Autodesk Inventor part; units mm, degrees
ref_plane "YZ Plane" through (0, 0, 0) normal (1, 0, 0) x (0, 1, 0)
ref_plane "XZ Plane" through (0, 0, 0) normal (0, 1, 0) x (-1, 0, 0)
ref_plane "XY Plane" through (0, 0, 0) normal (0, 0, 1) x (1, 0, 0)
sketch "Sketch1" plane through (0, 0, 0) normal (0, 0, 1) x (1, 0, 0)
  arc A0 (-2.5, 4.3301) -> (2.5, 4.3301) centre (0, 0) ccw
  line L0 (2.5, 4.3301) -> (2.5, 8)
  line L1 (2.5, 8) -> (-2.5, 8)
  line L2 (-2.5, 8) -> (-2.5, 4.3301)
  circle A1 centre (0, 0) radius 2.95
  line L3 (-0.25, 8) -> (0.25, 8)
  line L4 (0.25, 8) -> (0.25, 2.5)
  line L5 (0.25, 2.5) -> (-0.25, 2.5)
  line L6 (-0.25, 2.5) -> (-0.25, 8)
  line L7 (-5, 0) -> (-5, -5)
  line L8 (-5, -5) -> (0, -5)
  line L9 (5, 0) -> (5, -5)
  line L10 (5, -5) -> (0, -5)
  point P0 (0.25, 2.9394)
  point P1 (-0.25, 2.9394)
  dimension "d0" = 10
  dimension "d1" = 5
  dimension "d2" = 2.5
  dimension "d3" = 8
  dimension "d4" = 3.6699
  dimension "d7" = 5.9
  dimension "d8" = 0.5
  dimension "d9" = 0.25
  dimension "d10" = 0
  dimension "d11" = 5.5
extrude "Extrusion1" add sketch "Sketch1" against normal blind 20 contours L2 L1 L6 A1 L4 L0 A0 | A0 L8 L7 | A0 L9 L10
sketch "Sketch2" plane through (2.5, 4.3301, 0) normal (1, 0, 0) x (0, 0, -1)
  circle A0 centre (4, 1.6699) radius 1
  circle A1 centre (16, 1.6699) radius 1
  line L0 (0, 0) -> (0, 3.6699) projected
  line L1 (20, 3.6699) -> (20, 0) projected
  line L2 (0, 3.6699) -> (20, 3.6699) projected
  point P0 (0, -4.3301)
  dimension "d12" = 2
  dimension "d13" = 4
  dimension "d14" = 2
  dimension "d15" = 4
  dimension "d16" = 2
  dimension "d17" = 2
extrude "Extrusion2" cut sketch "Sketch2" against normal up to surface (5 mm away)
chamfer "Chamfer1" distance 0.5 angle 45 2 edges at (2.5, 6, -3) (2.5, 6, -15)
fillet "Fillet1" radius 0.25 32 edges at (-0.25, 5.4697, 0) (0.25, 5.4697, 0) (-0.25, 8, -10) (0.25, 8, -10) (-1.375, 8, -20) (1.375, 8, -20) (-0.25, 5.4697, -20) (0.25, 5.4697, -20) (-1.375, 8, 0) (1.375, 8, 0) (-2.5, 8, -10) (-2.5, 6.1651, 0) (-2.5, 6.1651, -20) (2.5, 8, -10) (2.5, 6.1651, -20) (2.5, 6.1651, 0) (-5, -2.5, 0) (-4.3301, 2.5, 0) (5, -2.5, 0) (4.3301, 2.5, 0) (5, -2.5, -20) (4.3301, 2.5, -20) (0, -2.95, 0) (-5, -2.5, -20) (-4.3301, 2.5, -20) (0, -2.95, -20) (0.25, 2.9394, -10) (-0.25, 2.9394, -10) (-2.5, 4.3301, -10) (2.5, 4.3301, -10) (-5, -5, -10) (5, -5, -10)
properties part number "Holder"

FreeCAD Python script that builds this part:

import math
import FreeCAD as App
import Part
import Sketcher
Q = App.Units.Quantity


def edges_at(feature, points):
    """Names of the edges that pass closest to the given points."""
    edges = feature.Shape.Edges
    near = lambda p: min(range(len(edges)), key=lambda i: edges[i].distToShape(Part.Vertex(*p))[0])
    return sorted({f"Edge{near(p) + 1}" for p in points})

doc = App.newDocument("Part")
params = doc.addObject("Spreadsheet::Sheet", "Params")
for row, (alias, value) in enumerate([
    ("sketch1_radius", "5 mm"),
    ("sketch1_height", "5 mm"),
    ("sketch1_radius2", "2.95 mm"),
    ("pad1_length", "20 mm"),
    ("sketch2_diameter", "2 mm"),
    ("pocket1_length", "5 mm"),
    ("chamfer_size", "0.5 mm"),
    ("fillet_radius", "0.25 mm"),
], start=1):
    params.set(f"A{row}", alias)
    params.set(f"B{row}", "=" + value)
    params.setAlias(f"B{row}", alias)

body = doc.addObject("PartDesign::Body", "Body")

# Sketch on XY plane
sketch1 = body.newObject("Sketcher::SketchObject", "Sketch")
sketch1.AttachmentSupport = (doc.getObject("XY_Plane"), [""])
sketch1.MapMode = "FlatFace"
sketch1.addGeometry(Part.LineSegment(App.Vector(-2.5, 8, 0), App.Vector(-2.5, 4.3301, 0)), False)
sketch1.addGeometry(Part.ArcOfCircle(Part.Circle(App.Vector(0, 0, 0), App.Vector(0, 0, 1), 4.999977), math.radians(120.000155), math.radians(180)), False)
sketch1.addGeometry(Part.LineSegment(App.Vector(-5, 0, 0), App.Vector(-5, -5, 0)), False)
sketch1.addGeometry(Part.LineSegment(App.Vector(-5, -5, 0), App.Vector(5, -5, 0)), False)
sketch1.addGeometry(Part.LineSegment(App.Vector(5, -5, 0), App.Vector(5, 0, 0)), False)
sketch1.addGeometry(Part.ArcOfCircle(Part.Circle(App.Vector(0, 0, 0), App.Vector(0, 0, 1), 4.999977), math.radians(0), math.radians(59.999845)), False)
sketch1.addGeometry(Part.LineSegment(App.Vector(2.5, 4.3301, 0), App.Vector(2.5, 8, 0)), False)
sketch1.addGeometry(Part.LineSegment(App.Vector(2.5, 8, 0), App.Vector(0.25, 8, 0)), False)
sketch1.addGeometry(Part.LineSegment(App.Vector(0.25, 8, 0), App.Vector(0.25, 2.939388, 0)), False)
sketch1.addGeometry(Part.ArcOfCircle(Part.Circle(App.Vector(0, 0, 0), App.Vector(0, 0, 1), 2.95), math.radians(94.861405), math.radians(445.138595)), False)
sketch1.addGeometry(Part.LineSegment(App.Vector(-0.25, 2.939388, 0), App.Vector(-0.25, 8, 0)), False)
sketch1.addGeometry(Part.LineSegment(App.Vector(-0.25, 8, 0), App.Vector(-2.5, 8, 0)), False)
sketch1.addConstraint(Sketcher.Constraint("Coincident", 0, 2, 1, 1))
sketch1.addConstraint(Sketcher.Constraint("Tangent", 1, 2, 2, 1))
sketch1.addConstraint(Sketcher.Constraint("Coincident", 2, 2, 3, 1))
sketch1.addConstraint(Sketcher.Constraint("Coincident", 3, 2, 4, 1))
sketch1.addConstraint(Sketcher.Constraint("Tangent", 4, 2, 5, 1))
sketch1.addConstraint(Sketcher.Constraint("Coincident", 5, 2, 6, 1))
sketch1.addConstraint(Sketcher.Constraint("Coincident", 6, 2, 7, 1))
sketch1.addConstraint(Sketcher.Constraint("Coincident", 7, 2, 8, 1))
sketch1.addConstraint(Sketcher.Constraint("Coincident", 8, 2, 9, 2))
sketch1.addConstraint(Sketcher.Constraint("Coincident", 9, 1, 10, 1))
sketch1.addConstraint(Sketcher.Constraint("Coincident", 10, 2, 11, 1))
sketch1.addConstraint(Sketcher.Constraint("Coincident", 11, 2, 0, 1))
sketch1.addConstraint(Sketcher.Constraint("Vertical", 0))
sketch1.addConstraint(Sketcher.Constraint("Vertical", 2))
sketch1.addConstraint(Sketcher.Constraint("Horizontal", 3))
sketch1.addConstraint(Sketcher.Constraint("Vertical", 4))
sketch1.addConstraint(Sketcher.Constraint("Vertical", 6))
sketch1.addConstraint(Sketcher.Constraint("Horizontal", 7))
sketch1.addConstraint(Sketcher.Constraint("Vertical", 8))
sketch1.addConstraint(Sketcher.Constraint("Vertical", 10))
sketch1.addConstraint(Sketcher.Constraint("Horizontal", 11))
sketch1.addConstraint(Sketcher.Constraint("Coincident", 1, 3, -1, 1))
sketch1.addConstraint(Sketcher.Constraint("Coincident", 5, 3, -1, 1))
sketch1.addConstraint(Sketcher.Constraint("Coincident", 9, 3, -1, 1))
sketch1.addConstraint(Sketcher.Constraint("Equal", 1, 5))
sketch1.addConstraint(Sketcher.Constraint("Symmetric", 7, 2, 10, 2, -2))
sketch1.addConstraint(Sketcher.Constraint("Horizontal", 0, 2, 5, 2))
sketch1.addConstraint(Sketcher.Constraint("Radius", 1, Q("5 mm")))
sketch1.addConstraint(Sketcher.Constraint("DistanceY", 2, 2, 2, 1, Q("5 mm")))
sketch1.addConstraint(Sketcher.Constraint("Radius", 9, Q("2.95 mm")))
sketch1.addConstraint(Sketcher.Constraint("DistanceY", -1, 1, 6, 2, Q("8 mm")))
sketch1.addConstraint(Sketcher.Constraint("DistanceX", 0, 2, 5, 2, Q("5 mm")))
sketch1.addConstraint(Sketcher.Constraint("DistanceX", 9, 1, 8, 2, Q("0.5 mm")))
sketch1.setExpression("Constraints[27]", "Params.sketch1_radius")
sketch1.setExpression("Constraints[28]", "Params.sketch1_height")
sketch1.setExpression("Constraints[29]", "Params.sketch1_radius2")
pad1 = body.newObject("PartDesign::Pad", "Pad")
pad1.Profile = sketch1
pad1.setExpression("Length", "Params.pad1_length")
pad1.Reversed = True

# Sketch on YZ plane
sketch2 = body.newObject("Sketcher::SketchObject", "Sketch001")
sketch2.AttachmentSupport = (doc.getObject("YZ_Plane"), [""])
sketch2.MapMode = "FlatFace"
sketch2.AttachmentOffset = App.Placement(App.Vector(0, 0, 2.5), App.Rotation())
sketch2.addGeometry(Part.Circle(App.Vector(6, -4, 0), App.Vector(0, 0, 1), 1), False)
sketch2.addGeometry(Part.Circle(App.Vector(6, -16, 0), App.Vector(0, 0, 1), 1), False)
sketch2.addConstraint(Sketcher.Constraint("Equal", 0, 1))
sketch2.addConstraint(Sketcher.Constraint("Vertical", 0, 3, 1, 3))
sketch2.addConstraint(Sketcher.Constraint("Diameter", 0, Q("2 mm")))
sketch2.addConstraint(Sketcher.Constraint("DistanceY", 0, 3, -1, 1, Q("4 mm")))
sketch2.addConstraint(Sketcher.Constraint("DistanceX", -1, 1, 0, 3, Q("6 mm")))
sketch2.addConstraint(Sketcher.Constraint("DistanceY", 1, 3, -1, 1, Q("16 mm")))
sketch2.setExpression("Constraints[2]", "Params.sketch2_diameter")
pocket1 = body.newObject("PartDesign::Pocket", "Pocket")
pocket1.Profile = sketch2
pocket1.setExpression("Length", "Params.pocket1_length")
doc.recompute()

chamfer = body.newObject("PartDesign::Chamfer", "Chamfer")
chamfer.Base = (pocket1, edges_at(pocket1, [(2.5, 6, -3), (2.5, 6, -15)]))
chamfer.setExpression("Size", "Params.chamfer_size")
doc.recompute()

fillet = body.newObject("PartDesign::Fillet", "Fillet")
fillet.Base = (chamfer, edges_at(chamfer, [
    (-0.25, 5.47, 0),
    (0.25, 5.47, 0),
    (-0.25, 8, -10),
    (0.25, 8, -10),
    (-1.375, 8, -20),
    (1.375, 8, -20),
    (-0.25, 5.47, -20),
    (0.25, 5.47, -20),
    (-1.375, 8, 0),
    (1.375, 8, 0),
    (-2.5, 8, -10),
    (-2.5, 6.165, 0),
    (-2.5, 6.165, -20),
    (2.5, 8, -10),
    (2.5, 6.165, -20),
    (2.5, 6.165, 0),
    (-5, -2.5, 0),
    (-4.33, 2.5, 0),
    (5, -2.5, 0),
    (4.33, 2.5, 0),
    (5, -2.5, -20),
    (4.33, 2.5, -20),
    (0, -2.95, 0),
    (-5, -2.5, -20),
    (-4.33, 2.5, -20),
    (0, -2.95, -20),
    (0.25, 2.939, -10),
    (-0.25, 2.939, -10),
    (-2.5, 4.33, -10),
    (2.5, 4.33, -10),
    (-5, -5, -10),
    (5, -5, -10),
]))
fillet.setExpression("Radius", "Params.fillet_radius")

doc.recompute()
